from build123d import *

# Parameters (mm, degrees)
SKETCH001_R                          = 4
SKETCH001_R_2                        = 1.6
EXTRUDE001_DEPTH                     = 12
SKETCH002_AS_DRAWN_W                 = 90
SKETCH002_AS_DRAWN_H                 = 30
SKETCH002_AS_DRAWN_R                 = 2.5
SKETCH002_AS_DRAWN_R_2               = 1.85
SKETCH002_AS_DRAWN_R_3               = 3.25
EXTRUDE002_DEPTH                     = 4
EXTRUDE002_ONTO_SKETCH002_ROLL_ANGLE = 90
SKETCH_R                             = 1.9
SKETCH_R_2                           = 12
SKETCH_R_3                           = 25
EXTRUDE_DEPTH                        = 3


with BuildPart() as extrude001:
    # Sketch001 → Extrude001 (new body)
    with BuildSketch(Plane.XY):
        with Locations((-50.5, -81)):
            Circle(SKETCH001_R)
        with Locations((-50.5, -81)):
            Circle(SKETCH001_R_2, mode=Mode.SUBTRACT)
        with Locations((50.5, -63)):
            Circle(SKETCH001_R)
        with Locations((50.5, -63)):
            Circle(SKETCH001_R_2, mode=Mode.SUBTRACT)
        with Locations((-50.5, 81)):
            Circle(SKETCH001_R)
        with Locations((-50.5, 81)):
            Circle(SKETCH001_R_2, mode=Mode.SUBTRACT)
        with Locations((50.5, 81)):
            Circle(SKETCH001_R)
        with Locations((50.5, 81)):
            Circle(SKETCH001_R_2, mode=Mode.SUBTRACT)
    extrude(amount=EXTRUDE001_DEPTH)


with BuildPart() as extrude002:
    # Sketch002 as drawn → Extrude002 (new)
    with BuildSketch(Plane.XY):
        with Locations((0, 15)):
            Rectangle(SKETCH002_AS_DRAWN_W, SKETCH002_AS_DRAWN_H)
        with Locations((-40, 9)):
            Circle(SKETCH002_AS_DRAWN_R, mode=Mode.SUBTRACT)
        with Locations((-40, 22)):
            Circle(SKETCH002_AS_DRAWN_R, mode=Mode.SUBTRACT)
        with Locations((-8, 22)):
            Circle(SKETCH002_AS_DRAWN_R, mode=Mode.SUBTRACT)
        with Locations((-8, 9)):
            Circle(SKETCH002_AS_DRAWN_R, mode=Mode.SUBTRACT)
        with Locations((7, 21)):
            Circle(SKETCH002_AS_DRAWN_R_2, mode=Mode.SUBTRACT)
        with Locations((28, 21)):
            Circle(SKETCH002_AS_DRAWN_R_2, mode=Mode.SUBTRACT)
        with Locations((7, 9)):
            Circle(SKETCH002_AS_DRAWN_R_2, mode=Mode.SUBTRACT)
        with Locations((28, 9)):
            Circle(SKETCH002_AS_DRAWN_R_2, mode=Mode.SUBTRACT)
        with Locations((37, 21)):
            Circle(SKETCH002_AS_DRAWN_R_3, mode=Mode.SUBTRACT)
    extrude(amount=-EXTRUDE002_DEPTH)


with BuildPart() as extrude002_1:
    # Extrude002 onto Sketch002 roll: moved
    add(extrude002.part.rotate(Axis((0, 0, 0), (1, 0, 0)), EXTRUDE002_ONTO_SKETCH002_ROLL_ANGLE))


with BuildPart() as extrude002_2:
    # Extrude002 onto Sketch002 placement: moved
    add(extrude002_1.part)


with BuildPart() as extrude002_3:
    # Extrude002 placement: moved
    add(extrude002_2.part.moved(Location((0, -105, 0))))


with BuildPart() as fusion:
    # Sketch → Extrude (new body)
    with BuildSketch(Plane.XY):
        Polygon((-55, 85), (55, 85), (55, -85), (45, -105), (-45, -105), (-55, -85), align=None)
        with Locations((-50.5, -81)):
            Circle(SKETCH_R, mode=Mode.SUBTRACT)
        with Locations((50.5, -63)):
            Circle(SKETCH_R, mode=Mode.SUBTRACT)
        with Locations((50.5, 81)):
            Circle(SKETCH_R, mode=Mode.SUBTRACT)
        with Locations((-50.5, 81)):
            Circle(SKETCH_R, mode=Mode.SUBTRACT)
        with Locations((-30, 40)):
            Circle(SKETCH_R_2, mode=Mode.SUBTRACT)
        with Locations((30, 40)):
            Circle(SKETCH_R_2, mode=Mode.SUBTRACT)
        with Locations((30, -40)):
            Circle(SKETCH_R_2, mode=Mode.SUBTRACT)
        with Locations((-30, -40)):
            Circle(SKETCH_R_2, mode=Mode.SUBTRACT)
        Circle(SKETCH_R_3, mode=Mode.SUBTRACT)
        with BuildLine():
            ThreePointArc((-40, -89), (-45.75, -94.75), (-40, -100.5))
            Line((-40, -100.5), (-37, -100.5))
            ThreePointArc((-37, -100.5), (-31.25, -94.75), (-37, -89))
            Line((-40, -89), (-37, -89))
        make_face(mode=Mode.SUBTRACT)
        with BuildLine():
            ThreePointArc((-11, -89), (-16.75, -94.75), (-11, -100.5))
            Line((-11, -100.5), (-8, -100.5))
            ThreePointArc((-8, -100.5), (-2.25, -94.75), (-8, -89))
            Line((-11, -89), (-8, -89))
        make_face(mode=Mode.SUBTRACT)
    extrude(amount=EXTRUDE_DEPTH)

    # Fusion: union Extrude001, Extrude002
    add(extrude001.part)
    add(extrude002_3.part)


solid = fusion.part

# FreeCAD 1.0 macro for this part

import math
import FreeCAD as App
import Part
import Sketcher
from FreeCAD import Vector


def add_polygon(sketch, points):
    """Adds a closed chain of lines whose ends are joined by coincident constraints."""
    first, n = sketch.GeometryCount, len(points)
    for a, b in zip(points, points[1:] + points[:1]):
        sketch.addGeometry(Part.LineSegment(App.Vector(*a, 0), App.Vector(*b, 0)), False)
    for i in range(n):
        sketch.addConstraint(Sketcher.Constraint("Coincident", first + i, 2, first + (i + 1) % n, 1))

doc = App.newDocument("Part")
body = doc.addObject("PartDesign::Body", "Body")
body.AllowCompound = True

# Sketch on XY plane
sketch1 = body.newObject("Sketcher::SketchObject", "Sketch")
sketch1.AttachmentSupport = (doc.getObject("XY_Plane"), [""])
sketch1.MapMode = "FlatFace"
sketch1.addGeometry(Part.Circle(Vector(-50.5, -81, 0), Vector(0, 0, 1), 4), False)
sketch1.addGeometry(Part.Circle(Vector(-50.5, -81, 0), Vector(0, 0, 1), 1.6), False)
sketch1.addGeometry(Part.Circle(Vector(50.5, -63, 0), Vector(0, 0, 1), 4), False)
sketch1.addGeometry(Part.Circle(Vector(50.5, -63, 0), Vector(0, 0, 1), 1.6), False)
sketch1.addGeometry(Part.Circle(Vector(-50.5, 81, 0), Vector(0, 0, 1), 4), False)
sketch1.addGeometry(Part.Circle(Vector(-50.5, 81, 0), Vector(0, 0, 1), 1.6), False)
sketch1.addGeometry(Part.Circle(Vector(50.5, 81, 0), Vector(0, 0, 1), 4), False)
sketch1.addGeometry(Part.Circle(Vector(50.5, 81, 0), Vector(0, 0, 1), 1.6), False)
sketch1.addConstraint(Sketcher.Constraint("Coincident", 1, 3, 0, 3))
sketch1.addConstraint(Sketcher.Constraint("Coincident", 3, 3, 2, 3))
sketch1.addConstraint(Sketcher.Constraint("Coincident", 5, 3, 4, 3))
sketch1.addConstraint(Sketcher.Constraint("Coincident", 7, 3, 6, 3))
sketch1.addConstraint(Sketcher.Constraint("Equal", 0, 2))
sketch1.addConstraint(Sketcher.Constraint("Equal", 1, 3))
sketch1.addConstraint(Sketcher.Constraint("Equal", 2, 4))
sketch1.addConstraint(Sketcher.Constraint("Equal", 3, 5))
sketch1.addConstraint(Sketcher.Constraint("Equal", 4, 6))
sketch1.addConstraint(Sketcher.Constraint("Equal", 5, 7))
sketch1.addConstraint(Sketcher.Constraint("Symmetric", 0, 3, 6, 3, -1, 1))
sketch1.addConstraint(Sketcher.Constraint("Symmetric", 4, 3, 6, 3, -2))
sketch1.addConstraint(Sketcher.Constraint("Vertical", 3, 3, 6, 3))
sketch1.addConstraint(Sketcher.Constraint("Diameter", 0, 8.0))
sketch1.addConstraint(Sketcher.Constraint("Diameter", 1, 3.2))
sketch1.addConstraint(Sketcher.Constraint("DistanceY", 0, 3, -1, 1, 81.0))
sketch1.addConstraint(Sketcher.Constraint("DistanceY", 2, 3, -1, 1, 63.0))
sketch1.addConstraint(Sketcher.Constraint("DistanceX", 0, 3, 2, 3, 101.0))
pad1 = body.newObject("PartDesign::Pad", "Pad")
pad1.Profile = sketch1
pad1.Length = 12
body2 = doc.addObject("PartDesign::Body", "Body001")

# Sketch on XY plane
sketch2 = body2.newObject("Sketcher::SketchObject", "Sketch001")
sketch2.AttachmentSupport = (doc.getObject("XY_Plane001"), [""])
sketch2.MapMode = "FlatFace"
add_polygon(sketch2, [(-45, 30), (-45, 0), (45, 0), (45, 30)])  # lines 0-3
sketch2.addGeometry(Part.Circle(Vector(-40, 9, 0), Vector(0, 0, 1), 2.5), False)  # 4
sketch2.addGeometry(Part.Circle(Vector(-8, 9, 0), Vector(0, 0, 1), 2.5), False)  # 5
sketch2.addGeometry(Part.Circle(Vector(7, 9, 0), Vector(0, 0, 1), 1.85), False)  # 6
sketch2.addGeometry(Part.Circle(Vector(28, 9, 0), Vector(0, 0, 1), 1.85), False)  # 7
sketch2.addGeometry(Part.Circle(Vector(-40, 22, 0), Vector(0, 0, 1), 2.5), False)  # 8
sketch2.addGeometry(Part.Circle(Vector(-8, 22, 0), Vector(0, 0, 1), 2.5), False)  # 9
sketch2.addGeometry(Part.Circle(Vector(7, 21, 0), Vector(0, 0, 1), 1.85), False)  # 10
sketch2.addGeometry(Part.Circle(Vector(28, 21, 0), Vector(0, 0, 1), 1.85), False)  # 11
sketch2.addGeometry(Part.Circle(Vector(37, 21, 0), Vector(0, 0, 1), 3.25), False)  # 12
sketch2.addConstraint(Sketcher.Constraint("Vertical", 0))
sketch2.addConstraint(Sketcher.Constraint("Horizontal", 1))
sketch2.addConstraint(Sketcher.Constraint("Vertical", 2))
sketch2.addConstraint(Sketcher.Constraint("Horizontal", 3))
sketch2.addConstraint(Sketcher.Constraint("Equal", 4, 5))
sketch2.addConstraint(Sketcher.Constraint("Equal", 6, 7))
sketch2.addConstraint(Sketcher.Constraint("Equal", 5, 8))
sketch2.addConstraint(Sketcher.Constraint("Equal", 8, 9))
sketch2.addConstraint(Sketcher.Constraint("Equal", 7, 10))
sketch2.addConstraint(Sketcher.Constraint("Equal", 10, 11))
sketch2.addConstraint(Sketcher.Constraint("Symmetric", 0, 2, 1, 2, -1, 1))
sketch2.addConstraint(Sketcher.Constraint("Horizontal", 4, 3, 5, 3))
sketch2.addConstraint(Sketcher.Constraint("Horizontal", 5, 3, 6, 3))
sketch2.addConstraint(Sketcher.Constraint("Horizontal", 6, 3, 7, 3))
sketch2.addConstraint(Sketcher.Constraint("Horizontal", 8, 3, 9, 3))
sketch2.addConstraint(Sketcher.Constraint("Horizontal", 10, 3, 11, 3))
sketch2.addConstraint(Sketcher.Constraint("Horizontal", 11, 3, 12, 3))
sketch2.addConstraint(Sketcher.Constraint("Vertical", 4, 3, 8, 3))
sketch2.addConstraint(Sketcher.Constraint("Vertical", 5, 3, 9, 3))
sketch2.addConstraint(Sketcher.Constraint("Vertical", 6, 3, 10, 3))
sketch2.addConstraint(Sketcher.Constraint("Vertical", 7, 3, 11, 3))
sketch2.addConstraint(Sketcher.Constraint("Diameter", 4, 5.0))
sketch2.addConstraint(Sketcher.Constraint("Diameter", 6, 3.7))
sketch2.addConstraint(Sketcher.Constraint("Diameter", 12, 6.5))
sketch2.addConstraint(Sketcher.Constraint("DistanceX", 1, 1, 1, 2, 90.0))
sketch2.addConstraint(Sketcher.Constraint("DistanceY", 0, 2, 0, 1, 30.0))
sketch2.addConstraint(Sketcher.Constraint("DistanceX", 4, 3, -1, 1, 40.0))
sketch2.addConstraint(Sketcher.Constraint("DistanceY", -1, 1, 4, 3, 9.0))
sketch2.addConstraint(Sketcher.Constraint("DistanceX", 5, 3, -1, 1, 8.0))
sketch2.addConstraint(Sketcher.Constraint("DistanceX", -1, 1, 6, 3, 7.0))
sketch2.addConstraint(Sketcher.Constraint("DistanceX", -1, 1, 7, 3, 28.0))
sketch2.addConstraint(Sketcher.Constraint("DistanceY", -1, 1, 8, 3, 22.0))
sketch2.addConstraint(Sketcher.Constraint("DistanceY", -1, 1, 10, 3, 21.0))
sketch2.addConstraint(Sketcher.Constraint("DistanceX", -1, 1, 12, 3, 37.0))
pad2 = body2.newObject("PartDesign::Pad", "Pad001")
pad2.Profile = sketch2
pad2.Length = 4
pad2.Reversed = True
body3 = doc.addObject("PartDesign::Body", "Body002")
doc.recompute()

body2.Placement = App.Placement(Vector(0, 0, 0), App.Rotation(Vector(1, 0, 0), 90))
boolean = body3.newObject("PartDesign::Boolean", "Boolean")
boolean.Type = "Fuse"
boolean.addObjects([body2])
body4 = doc.addObject("PartDesign::Body", "Body003")
doc.recompute()

body3.Placement = App.Placement(Vector(0, -105, 0), App.Rotation(Vector(0, 0, 1), 0))
boolean2 = body4.newObject("PartDesign::Boolean", "Boolean001")
boolean2.Type = "Fuse"
boolean2.addObjects([body3])
body5 = doc.addObject("PartDesign::Body", "Body004")

# Sketch on XY plane
sketch3 = body5.newObject("Sketcher::SketchObject", "Sketch002")
sketch3.AttachmentSupport = (doc.getObject("XY_Plane004"), [""])
sketch3.MapMode = "FlatFace"
add_polygon(sketch3, [(55, 85), (-55, 85), (-55, -85), (-45, -105), (45, -105), (55, -85)])  # lines 0-5
sketch3.addGeometry(Part.Circle(Vector(50.5, -63, 0), Vector(0, 0, 1), 1.9), False)  # 6
sketch3.addGeometry(Part.Circle(Vector(30, -40, 0), Vector(0, 0, 1), 12), False)  # 7
sketch3.addGeometry(Part.LineSegment(Vector(-11, -89, 0), Vector(-8, -89, 0)), False)  # 8
sketch3.addGeometry(Part.ArcOfCircle(Part.Circle(Vector(-8, -94.75, 0), Vector(0, 0, 1), 5.75), math.radians(-90), math.radians(90)), False)  # 9
sketch3.addGeometry(Part.LineSegment(Vector(-8, -100.5, 0), Vector(-11, -100.5, 0)), False)  # 10
sketch3.addGeometry(Part.ArcOfCircle(Part.Circle(Vector(-11, -94.75, 0), Vector(0, 0, 1), 5.75), math.radians(90), math.radians(270)), False)  # 11
sketch3.addGeometry(Part.LineSegment(Vector(-40, -89, 0), Vector(-37, -89, 0)), False)  # 12
sketch3.addGeometry(Part.ArcOfCircle(Part.Circle(Vector(-37, -94.75, 0), Vector(0, 0, 1), 5.75), math.radians(-90), math.radians(90)), False)  # 13
sketch3.addGeometry(Part.LineSegment(Vector(-37, -100.5, 0), Vector(-40, -100.5, 0)), False)  # 14
sketch3.addGeometry(Part.ArcOfCircle(Part.Circle(Vector(-40, -94.75, 0), Vector(0, 0, 1), 5.75), math.radians(90), math.radians(270)), False)  # 15
sketch3.addGeometry(Part.Circle(Vector(-50.5, -81, 0), Vector(0, 0, 1), 1.9), False)  # 16
sketch3.addGeometry(Part.Circle(Vector(-30, -40, 0), Vector(0, 0, 1), 12), False)  # 17
sketch3.addGeometry(Part.Circle(Vector(30, 40, 0), Vector(0, 0, 1), 12), False)  # 18
sketch3.addGeometry(Part.Circle(Vector(50.5, 81, 0), Vector(0, 0, 1), 1.9), False)  # 19
sketch3.addGeometry(Part.Circle(Vector(0, 0, 0), Vector(0, 0, 1), 25), False)  # 20
sketch3.addGeometry(Part.Circle(Vector(-30, 40, 0), Vector(0, 0, 1), 12), False)  # 21
sketch3.addGeometry(Part.Circle(Vector(-50.5, 81, 0), Vector(0, 0, 1), 1.9), False)  # 22
sketch3.addConstraint(Sketcher.Constraint("Tangent", 8, 2, 9, 2))
sketch3.addConstraint(Sketcher.Constraint("Tangent", 9, 1, 10, 1))
sketch3.addConstraint(Sketcher.Constraint("Tangent", 10, 2, 11, 2))
sketch3.addConstraint(Sketcher.Constraint("Tangent", 11, 1, 8, 1))
sketch3.addConstraint(Sketcher.Constraint("Tangent", 12, 2, 13, 2))
sketch3.addConstraint(Sketcher.Constraint("Tangent", 13, 1, 14, 1))
sketch3.addConstraint(Sketcher.Constraint("Tangent", 14, 2, 15, 2))
sketch3.addConstraint(Sketcher.Constraint("Tangent", 15, 1, 12, 1))
sketch3.addConstraint(Sketcher.Constraint("Horizontal", 0))
sketch3.addConstraint(Sketcher.Constraint("Vertical", 1))
sketch3.addConstraint(Sketcher.Constraint("Horizontal", 3))
sketch3.addConstraint(Sketcher.Constraint("Vertical", 5))
sketch3.addConstraint(Sketcher.Constraint("Horizontal", 8))
sketch3.addConstraint(Sketcher.Constraint("Horizontal", 10))
sketch3.addConstraint(Sketcher.Constraint("Horizontal", 12))
sketch3.addConstraint(Sketcher.Constraint("Horizontal", 14))
sketch3.addConstraint(Sketcher.Constraint("Coincident", 20, 3, -1, 1))
sketch3.addConstraint(Sketcher.Constraint("Equal", 11, 13))
sketch3.addConstraint(Sketcher.Constraint("Equal", 6, 16))
sketch3.addConstraint(Sketcher.Constraint("Equal", 7, 17))
sketch3.addConstraint(Sketcher.Constraint("Equal", 17, 18))
sketch3.addConstraint(Sketcher.Constraint("Equal", 16, 19))
sketch3.addConstraint(Sketcher.Constraint("Equal", 18, 21))
sketch3.addConstraint(Sketcher.Constraint("Equal", 19, 22))
sketch3.addConstraint(Sketcher.Constraint("Symmetric", 17, 3, 18, 3, -1, 1))
sketch3.addConstraint(Sketcher.Constraint("Symmetric", 16, 3, 19, 3, -1, 1))
sketch3.addConstraint(Sketcher.Constraint("Symmetric", 7, 3, 21, 3, -1, 1))
sketch3.addConstraint(Sketcher.Constraint("Symmetric", 0, 2, 4, 2, -1, 1))
sketch3.addConstraint(Sketcher.Constraint("Symmetric", 7, 3, 17, 3, -2))
sketch3.addConstraint(Sketcher.Constraint("Symmetric", 19, 3, 22, 3, -2))
sketch3.addConstraint(Sketcher.Constraint("Horizontal", 11, 3, 13, 3))
sketch3.addConstraint(Sketcher.Constraint("Horizontal", 1, 2, 4, 2))
sketch3.addConstraint(Sketcher.Constraint("Vertical", 6, 3, 19, 3))
sketch3.addConstraint(Sketcher.Constraint("Equal", 10, 12))
sketch3.addConstraint(Sketcher.Constraint("Equal", 2, 4))
sketch3.addConstraint(Sketcher.Constraint("Diameter", 7, 24.0))
sketch3.addConstraint(Sketcher.Constraint("Diameter", 20, 50.0))
sketch3.addConstraint(Sketcher.Constraint("Diameter", 6, 3.8))
sketch3.addConstraint(Sketcher.Constraint("DistanceX", 0, 2, 0, 1, 110.0))
sketch3.addConstraint(Sketcher.Constraint("DistanceX", 3, 1, 3, 2, 90.0))
sketch3.addConstraint(Sketcher.Constraint("DistanceX", 8, 1, 8, 2, 3.0))
sketch3.addConstraint(Sketcher.Constraint("DistanceY", 1, 2, 1, 1, 170.0))
sketch3.addConstraint(Sketcher.Constraint("Radius", 9, 5.75))
sketch3.addConstraint(Sketcher.Constraint("DistanceY", 6, 3, -1, 1, 63.0))
sketch3.addConstraint(Sketcher.Constraint("DistanceX", -1, 1, 7, 3, 30.0))
sketch3.addConstraint(Sketcher.Constraint("DistanceY", 7, 3, -1, 1, 40.0))
sketch3.addConstraint(Sketcher.Constraint("DistanceX", 9, 3, -1, 1, 8.0))
sketch3.addConstraint(Sketcher.Constraint("DistanceX", 13, 3, -1, 1, 37.0))
sketch3.addConstraint(Sketcher.Constraint("DistanceY", 16, 3, -1, 1, 81.0))
sketch3.addConstraint(Sketcher.Constraint("DistanceY", 2, 2, -1, 1, 105.0))
sketch3.addConstraint(Sketcher.Constraint("DistanceY", 8, 2, -1, 1, 89.0))
sketch3.addConstraint(Sketcher.Constraint("DistanceX", 22, 3, 19, 3, 101.0))
pad3 = body5.newObject("PartDesign::Pad", "Pad002")
pad3.Profile = sketch3
pad3.Length = 3
doc.recompute()

boolean3 = body5.newObject("PartDesign::Boolean", "Boolean002")
boolean3.Type = "Fuse"
boolean3.addObjects([body])
doc.recompute()

boolean4 = body5.newObject("PartDesign::Boolean", "Boolean003")
boolean4.Type = "Fuse"
boolean4.addObjects([body4])

doc.recompute()
